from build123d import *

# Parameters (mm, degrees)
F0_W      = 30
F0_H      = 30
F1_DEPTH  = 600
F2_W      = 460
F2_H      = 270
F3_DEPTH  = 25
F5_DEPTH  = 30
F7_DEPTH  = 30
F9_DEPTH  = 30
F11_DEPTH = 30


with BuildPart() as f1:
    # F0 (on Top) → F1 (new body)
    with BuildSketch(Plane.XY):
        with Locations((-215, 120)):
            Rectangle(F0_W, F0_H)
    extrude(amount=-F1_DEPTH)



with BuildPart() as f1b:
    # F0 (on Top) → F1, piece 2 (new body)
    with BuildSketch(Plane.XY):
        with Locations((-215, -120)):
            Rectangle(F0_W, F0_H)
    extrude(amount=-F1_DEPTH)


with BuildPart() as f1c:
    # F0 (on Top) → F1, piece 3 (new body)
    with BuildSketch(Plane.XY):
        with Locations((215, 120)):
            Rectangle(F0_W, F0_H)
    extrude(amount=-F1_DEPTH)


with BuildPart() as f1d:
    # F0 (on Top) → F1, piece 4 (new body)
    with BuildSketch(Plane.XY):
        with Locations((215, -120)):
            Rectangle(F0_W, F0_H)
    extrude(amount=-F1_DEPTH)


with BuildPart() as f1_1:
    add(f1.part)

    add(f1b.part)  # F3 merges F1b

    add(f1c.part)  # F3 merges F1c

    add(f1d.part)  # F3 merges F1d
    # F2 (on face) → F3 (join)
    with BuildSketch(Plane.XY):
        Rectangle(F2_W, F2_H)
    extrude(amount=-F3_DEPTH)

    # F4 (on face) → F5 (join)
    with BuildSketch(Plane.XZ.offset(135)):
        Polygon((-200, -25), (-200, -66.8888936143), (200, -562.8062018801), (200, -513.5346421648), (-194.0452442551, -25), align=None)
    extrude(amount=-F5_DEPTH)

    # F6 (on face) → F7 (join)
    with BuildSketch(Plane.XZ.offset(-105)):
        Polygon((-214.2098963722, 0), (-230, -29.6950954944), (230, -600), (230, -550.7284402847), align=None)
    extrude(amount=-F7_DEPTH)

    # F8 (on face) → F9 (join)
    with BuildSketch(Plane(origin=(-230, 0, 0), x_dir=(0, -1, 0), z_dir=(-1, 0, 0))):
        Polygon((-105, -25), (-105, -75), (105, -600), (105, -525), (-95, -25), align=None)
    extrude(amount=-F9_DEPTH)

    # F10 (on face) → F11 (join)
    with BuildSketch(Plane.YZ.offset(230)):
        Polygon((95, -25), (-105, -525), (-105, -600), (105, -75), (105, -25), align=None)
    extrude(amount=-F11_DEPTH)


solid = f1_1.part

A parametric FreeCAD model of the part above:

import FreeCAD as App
import Part
import Sketcher
from FreeCAD import Vector
Q = App.Units.Quantity

doc = App.newDocument("Part")
params = doc.addObject("Spreadsheet::Sheet", "Params")
for row, (alias, value) in enumerate([
    ("sketch1_width", "30 mm"),
    ("pad1_length", "600 mm"),
    ("sketch2_width", "30 mm"),
    ("pad2_length", "600 mm"),
    ("sketch3_width", "30 mm"),
    ("pad3_length", "600 mm"),
    ("sketch4_width", "30 mm"),
    ("pad4_length", "600 mm"),
    ("sketch5_width", "460 mm"),
    ("sketch5_height", "270 mm"),
    ("pad5_length", "25 mm"),
    ("pad6_length", "30 mm"),
    ("pad7_length", "30 mm"),
    ("sketch8_width", "10 mm"),
    ("sketch8_height", "50 mm"),
    ("sketch8_height2", "75 mm"),
    ("pad8_length", "30 mm"),
    ("sketch9_width", "10 mm"),
    ("sketch9_height", "75 mm"),
    ("sketch9_height2", "50 mm"),
    ("pad9_length", "30 mm"),
], start=1):
    params.set(f"A{row}", alias)
    params.set(f"B{row}", "=" + value)
    params.setAlias(f"B{row}", alias)

body = doc.addObject("PartDesign::Body", "Body")

sketch1 = body.newObject("Sketcher::SketchObject", "Sketch")
sketch1.AttachmentSupport = (doc.getObject("XY_Plane"), [""])
sketch1.MapMode = "FlatFace"
sketch1.addGeometry([
    Part.LineSegment(Vector(-230, 135, 0), Vector(-230, 105, 0)),
    Part.LineSegment(Vector(-230, 105, 0), Vector(-200, 105, 0)),
    Part.LineSegment(Vector(-200, 105, 0), Vector(-200, 135, 0)),
    Part.LineSegment(Vector(-200, 135, 0), Vector(-230, 135, 0)),
], False)
sketch1.addConstraint([
    Sketcher.Constraint("Coincident", 0, 2, 1, 1),
    Sketcher.Constraint("Coincident", 1, 2, 2, 1),
    Sketcher.Constraint("Coincident", 2, 2, 3, 1),
    Sketcher.Constraint("Coincident", 3, 2, 0, 1),
    Sketcher.Constraint("Vertical", 0),
    Sketcher.Constraint("Horizontal", 1),
    Sketcher.Constraint("Vertical", 2),
    Sketcher.Constraint("Horizontal", 3),
    Sketcher.Constraint("Equal", 3, 0),
    Sketcher.Constraint("DistanceX", 1, 1, 1, 2, Q("30 mm")),
    Sketcher.Constraint("DistanceX", 0, 2, -1, 1, Q("230 mm")),
    Sketcher.Constraint("DistanceY", -1, 1, 0, 2, Q("105 mm")),
])
sketch1.setExpression("Constraints[9]", "Params.sketch1_width")
pad1 = body.newObject("PartDesign::Pad", "Pad")
pad1.Profile = sketch1
pad1.setExpression("Length", "Params.pad1_length")
pad1.Reversed = True
body2 = doc.addObject("PartDesign::Body", "Body001")

sketch2 = body2.newObject("Sketcher::SketchObject", "Sketch001")
sketch2.AttachmentSupport = (doc.getObject("XY_Plane001"), [""])
sketch2.MapMode = "FlatFace"
sketch2.addGeometry([
    Part.LineSegment(Vector(-230, -105, 0), Vector(-230, -135, 0)),
    Part.LineSegment(Vector(-230, -135, 0), Vector(-200, -135, 0)),
    Part.LineSegment(Vector(-200, -135, 0), Vector(-200, -105, 0)),
    Part.LineSegment(Vector(-200, -105, 0), Vector(-230, -105, 0)),
], False)
sketch2.addConstraint([
    Sketcher.Constraint("Coincident", 0, 2, 1, 1),
    Sketcher.Constraint("Coincident", 1, 2, 2, 1),
    Sketcher.Constraint("Coincident", 2, 2, 3, 1),
    Sketcher.Constraint("Coincident", 3, 2, 0, 1),
    Sketcher.Constraint("Vertical", 0),
    Sketcher.Constraint("Horizontal", 1),
    Sketcher.Constraint("Vertical", 2),
    Sketcher.Constraint("Horizontal", 3),
    Sketcher.Constraint("Equal", 3, 0),
    Sketcher.Constraint("DistanceX", 1, 1, 1, 2, Q("30 mm")),
    Sketcher.Constraint("DistanceX", 0, 2, -1, 1, Q("230 mm")),
    Sketcher.Constraint("DistanceY", 0, 2, -1, 1, Q("135 mm")),
])
sketch2.setExpression("Constraints[9]", "Params.sketch2_width")
pad2 = body2.newObject("PartDesign::Pad", "Pad001")
pad2.Profile = sketch2
pad2.setExpression("Length", "Params.pad2_length")
pad2.Reversed = True
body3 = doc.addObject("PartDesign::Body", "Body002")

sketch3 = body3.newObject("Sketcher::SketchObject", "Sketch002")
sketch3.AttachmentSupport = (doc.getObject("XY_Plane002"), [""])
sketch3.MapMode = "FlatFace"
sketch3.addGeometry([
    Part.LineSegment(Vector(200, 135, 0), Vector(200, 105, 0)),
    Part.LineSegment(Vector(200, 105, 0), Vector(230, 105, 0)),
    Part.LineSegment(Vector(230, 105, 0), Vector(230, 135, 0)),
    Part.LineSegment(Vector(230, 135, 0), Vector(200, 135, 0)),
], False)
sketch3.addConstraint([
    Sketcher.Constraint("Coincident", 0, 2, 1, 1),
    Sketcher.Constraint("Coincident", 1, 2, 2, 1),
    Sketcher.Constraint("Coincident", 2, 2, 3, 1),
    Sketcher.Constraint("Coincident", 3, 2, 0, 1),
    Sketcher.Constraint("Vertical", 0),
    Sketcher.Constraint("Horizontal", 1),
    Sketcher.Constraint("Vertical", 2),
    Sketcher.Constraint("Horizontal", 3),
    Sketcher.Constraint("Equal", 3, 0),
    Sketcher.Constraint("DistanceX", 1, 1, 1, 2, Q("30 mm")),
    Sketcher.Constraint("DistanceX", -1, 1, 0, 2, Q("200 mm")),
    Sketcher.Constraint("DistanceY", -1, 1, 0, 2, Q("105 mm")),
])
sketch3.setExpression("Constraints[9]", "Params.sketch3_width")
pad3 = body3.newObject("PartDesign::Pad", "Pad002")
pad3.Profile = sketch3
pad3.setExpression("Length", "Params.pad3_length")
pad3.Reversed = True
body4 = doc.addObject("PartDesign::Body", "Body003")

sketch4 = body4.newObject("Sketcher::SketchObject", "Sketch003")
sketch4.AttachmentSupport = (doc.getObject("XY_Plane003"), [""])
sketch4.MapMode = "FlatFace"
sketch4.addGeometry([
    Part.LineSegment(Vector(200, -105, 0), Vector(200, -135, 0)),
    Part.LineSegment(Vector(200, -135, 0), Vector(230, -135, 0)),
    Part.LineSegment(Vector(230, -135, 0), Vector(230, -105, 0)),
    Part.LineSegment(Vector(230, -105, 0), Vector(200, -105, 0)),
], False)
sketch4.addConstraint([
    Sketcher.Constraint("Coincident", 0, 2, 1, 1),
    Sketcher.Constraint("Coincident", 1, 2, 2, 1),
    Sketcher.Constraint("Coincident", 2, 2, 3, 1),
    Sketcher.Constraint("Coincident", 3, 2, 0, 1),
    Sketcher.Constraint("Vertical", 0),
    Sketcher.Constraint("Horizontal", 1),
    Sketcher.Constraint("Vertical", 2),
    Sketcher.Constraint("Horizontal", 3),
    Sketcher.Constraint("Equal", 3, 0),
    Sketcher.Constraint("DistanceX", 1, 1, 1, 2, Q("30 mm")),
    Sketcher.Constraint("DistanceX", -1, 1, 0, 2, Q("200 mm")),
    Sketcher.Constraint("DistanceY", 0, 2, -1, 1, Q("135 mm")),
])
sketch4.setExpression("Constraints[9]", "Params.sketch4_width")
pad4 = body4.newObject("PartDesign::Pad", "Pad003")
pad4.Profile = sketch4
pad4.setExpression("Length", "Params.pad4_length")
pad4.Reversed = True
body.AllowCompound = True
doc.recompute()

boolean = body.newObject("PartDesign::Boolean", "Boolean")
boolean.Type = "Fuse"
boolean.addObjects([body2])
doc.recompute()

boolean2 = body.newObject("PartDesign::Boolean", "Boolean001")
boolean2.Type = "Fuse"
boolean2.addObjects([body3])
doc.recompute()

boolean3 = body.newObject("PartDesign::Boolean", "Boolean002")
boolean3.Type = "Fuse"
boolean3.addObjects([body4])

sketch5 = body.newObject("Sketcher::SketchObject", "Sketch004")
sketch5.AttachmentSupport = (doc.getObject("XY_Plane"), [""])
sketch5.MapMode = "FlatFace"
sketch5.addGeometry([
    Part.LineSegment(Vector(-230, 135, 0), Vector(-230, -135, 0)),
    Part.LineSegment(Vector(-230, -135, 0), Vector(230, -135, 0)),
    Part.LineSegment(Vector(230, -135, 0), Vector(230, 135, 0)),
    Part.LineSegment(Vector(230, 135, 0), Vector(-230, 135, 0)),
], False)
sketch5.addConstraint([
    Sketcher.Constraint("Coincident", 0, 2, 1, 1),
    Sketcher.Constraint("Coincident", 1, 2, 2, 1),
    Sketcher.Constraint("Coincident", 2, 2, 3, 1),
    Sketcher.Constraint("Coincident", 3, 2, 0, 1),
    Sketcher.Constraint("Vertical", 0),
    Sketcher.Constraint("Horizontal", 1),
    Sketcher.Constraint("Vertical", 2),
    Sketcher.Constraint("Horizontal", 3),
    Sketcher.Constraint("Symmetric", 0, 2, 2, 2, -1, 1),
    Sketcher.Constraint("DistanceX", 1, 1, 1, 2, Q("460 mm")),
    Sketcher.Constraint("DistanceY", 0, 2, 0, 1, Q("270 mm")),
])
sketch5.setExpression("Constraints[9]", "Params.sketch5_width")
sketch5.setExpression("Constraints[10]", "Params.sketch5_height")
pad5 = body.newObject("PartDesign::Pad", "Pad004")
pad5.Profile = sketch5
pad5.setExpression("Length", "Params.pad5_length")
pad5.Reversed = True

sketch6 = body.newObject("Sketcher::SketchObject", "Sketch005")
sketch6.AttachmentSupport = (doc.getObject("XZ_Plane"), [""])
sketch6.MapMode = "FlatFace"
sketch6.AttachmentOffset = App.Placement(Vector(0, 0, 135), App.Rotation())
sketch6.addGeometry([
    Part.LineSegment(Vector(-200, -25, 0), Vector(-200, -66.888894, 0)),
    Part.LineSegment(Vector(-200, -66.888894, 0), Vector(200, -562.806202, 0)),
    Part.LineSegment(Vector(200, -562.806202, 0), Vector(200, -513.534642, 0)),
    Part.LineSegment(Vector(200, -513.534642, 0), Vector(-194.045244, -25, 0)),
    Part.LineSegment(Vector(-194.045244, -25, 0), Vector(-200, -25, 0)),
], False)
sketch6.addConstraint([
    Sketcher.Constraint("Coincident", 0, 2, 1, 1),
    Sketcher.Constraint("Coincident", 1, 2, 2, 1),
    Sketcher.Constraint("Coincident", 2, 2, 3, 1),
    Sketcher.Constraint("Coincident", 3, 2, 4, 1),
    Sketcher.Constraint("Coincident", 4, 2, 0, 1),
    Sketcher.Constraint("Vertical", 0),
    Sketcher.Constraint("Vertical", 2),
    Sketcher.Constraint("Horizontal", 4),
    Sketcher.Constraint("Parallel", 1, 3),
    Sketcher.Constraint("DistanceX", 0, 2, -1, 1, Q("200 mm")),
    Sketcher.Constraint("DistanceX", -1, 1, 1, 2, Q("200 mm")),
    Sketcher.Constraint("DistanceY", 3, 2, -1, 1, Q("25 mm")),
    Sketcher.Constraint("DistanceY", 2, 1, 2, 2, Q("49.27156 mm")),
    Sketcher.Constraint("DistanceY", 1, 2, -1, 1, Q("562.806202 mm")),
    Sketcher.Constraint("Distance", 1, Q("637.129482 mm")),
])
pad6 = body.newObject("PartDesign::Pad", "Pad005")
pad6.Profile = sketch6
pad6.setExpression("Length", "Params.pad6_length")
pad6.Reversed = True

sketch7 = body.newObject("Sketcher::SketchObject", "Sketch006")
sketch7.AttachmentSupport = (doc.getObject("XZ_Plane"), [""])
sketch7.MapMode = "FlatFace"
sketch7.AttachmentOffset = App.Placement(Vector(0, 0, -105), App.Rotation())
sketch7.addGeometry([
    Part.LineSegment(Vector(-214.209896, 0, 0), Vector(-230, -29.695095, 0)),
    Part.LineSegment(Vector(-230, -29.695095, 0), Vector(230, -600, 0)),
    Part.LineSegment(Vector(230, -600, 0), Vector(230, -550.72844, 0)),
    Part.LineSegment(Vector(230, -550.72844, 0), Vector(-214.209896, 0, 0)),
], False)
sketch7.addConstraint([
    Sketcher.Constraint("Coincident", 0, 2, 1, 1),
    Sketcher.Constraint("Coincident", 1, 2, 2, 1),
    Sketcher.Constraint("Coincident", 2, 2, 3, 1),
    Sketcher.Constraint("Coincident", 3, 2, 0, 1),
    Sketcher.Constraint("Vertical", 2),
    Sketcher.Constraint("PointOnObject", 3, 2, -1),
    Sketcher.Constraint("Parallel", 1, 3),
    Sketcher.Constraint("DistanceX", 0, 2, -1, 1, Q("230 mm")),
    Sketcher.Constraint("DistanceX", -1, 1, 1, 2, Q("230 mm")),
    Sketcher.Constraint("DistanceY", 1, 2, -1, 1, Q("600 mm")),
    Sketcher.Constraint("DistanceY", 2, 1, 2, 2, Q("49.27156 mm")),
    Sketcher.Constraint("Distance", 0, Q("33.632218 mm")),
])
pad7 = body.newObject("PartDesign::Pad", "Pad006")
pad7.Profile = sketch7
pad7.setExpression("Length", "Params.pad7_length")
pad7.Reversed = True

sketch8 = body.newObject("Sketcher::SketchObject", "Sketch007")
sketch8.AttachmentSupport = (doc.getObject("YZ_Plane"), [""])
sketch8.MapMode = "FlatFace"
sketch8.AttachmentOffset = App.Placement(Vector(0, 0, -230), App.Rotation())
sketch8.addGeometry([
    Part.LineSegment(Vector(105, -25, 0), Vector(105, -75, 0)),
    Part.LineSegment(Vector(105, -75, 0), Vector(-105, -600, 0)),
    Part.LineSegment(Vector(-105, -600, 0), Vector(-105, -525, 0)),
    Part.LineSegment(Vector(-105, -525, 0), Vector(95, -25, 0)),
    Part.LineSegment(Vector(95, -25, 0), Vector(105, -25, 0)),
], False)
sketch8.addConstraint([
    Sketcher.Constraint("Coincident", 0, 2, 1, 1),
    Sketcher.Constraint("Coincident", 1, 2, 2, 1),
    Sketcher.Constraint("Coincident", 2, 2, 3, 1),
    Sketcher.Constraint("Coincident", 3, 2, 4, 1),
    Sketcher.Constraint("Coincident", 4, 2, 0, 1),
    Sketcher.Constraint("Vertical", 0),
    Sketcher.Constraint("Vertical", 2),
    Sketcher.Constraint("Horizontal", 4),
    Sketcher.Constraint("Parallel", 1, 3),
    Sketcher.Constraint("DistanceX", 4, 1, 4, 2, Q("10 mm")),
    Sketcher.Constraint("DistanceY", 0, 2, 0, 1, Q("50 mm")),
    Sketcher.Constraint("DistanceY", 2, 1, 2, 2, Q("75 mm")),
    Sketcher.Constraint("DistanceX", -1, 1, 0, 2, Q("105 mm")),
    Sketcher.Constraint("DistanceY", 0, 2, -1, 1, Q("75 mm")),
    Sketcher.Constraint("DistanceX", 1, 2, -1, 1, Q("105 mm")),
])
sketch8.setExpression("Constraints[9]", "Params.sketch8_width")
sketch8.setExpression("Constraints[10]", "Params.sketch8_height")
sketch8.setExpression("Constraints[11]", "Params.sketch8_height2")
pad8 = body.newObject("PartDesign::Pad", "Pad007")
pad8.Profile = sketch8
pad8.setExpression("Length", "Params.pad8_length")

sketch9 = body.newObject("Sketcher::SketchObject", "Sketch008")
sketch9.AttachmentSupport = (doc.getObject("YZ_Plane"), [""])
sketch9.MapMode = "FlatFace"
sketch9.AttachmentOffset = App.Placement(Vector(0, 0, 230), App.Rotation())
sketch9.addGeometry([
    Part.LineSegment(Vector(95, -25, 0), Vector(-105, -525, 0)),
    Part.LineSegment(Vector(-105, -525, 0), Vector(-105, -600, 0)),
    Part.LineSegment(Vector(-105, -600, 0), Vector(105, -75, 0)),
    Part.LineSegment(Vector(105, -75, 0), Vector(105, -25, 0)),
    Part.LineSegment(Vector(105, -25, 0), Vector(95, -25, 0)),
], False)
sketch9.addConstraint([
    Sketcher.Constraint("Coincident", 0, 2, 1, 1),
    Sketcher.Constraint("Coincident", 1, 2, 2, 1),
    Sketcher.Constraint("Coincident", 2, 2, 3, 1),
    Sketcher.Constraint("Coincident", 3, 2, 4, 1),
    Sketcher.Constraint("Coincident", 4, 2, 0, 1),
    Sketcher.Constraint("Vertical", 1),
    Sketcher.Constraint("Vertical", 3),
    Sketcher.Constraint("Horizontal", 4),
    Sketcher.Constraint("Parallel", 0, 2),
    Sketcher.Constraint("DistanceX", 4, 2, 4, 1, Q("10 mm")),
    Sketcher.Constraint("DistanceY", 1, 2, 1, 1, Q("75 mm")),
    Sketcher.Constraint("DistanceY", 3, 1, 3, 2, Q("50 mm")),
    Sketcher.Constraint("DistanceX", 0, 2, -1, 1, Q("105 mm")),
    Sketcher.Constraint("DistanceY", 0, 2, -1, 1, Q("525 mm")),
    Sketcher.Constraint("DistanceX", -1, 1, 2, 2, Q("105 mm")),
])
sketch9.setExpression("Constraints[9]", "Params.sketch9_width")
sketch9.setExpression("Constraints[10]", "Params.sketch9_height")
sketch9.setExpression("Constraints[11]", "Params.sketch9_height2")
pad9 = body.newObject("PartDesign::Pad", "Pad008")
pad9.Profile = sketch9
pad9.setExpression("Length", "Params.pad9_length")
pad9.Reversed = True

doc.recompute()
